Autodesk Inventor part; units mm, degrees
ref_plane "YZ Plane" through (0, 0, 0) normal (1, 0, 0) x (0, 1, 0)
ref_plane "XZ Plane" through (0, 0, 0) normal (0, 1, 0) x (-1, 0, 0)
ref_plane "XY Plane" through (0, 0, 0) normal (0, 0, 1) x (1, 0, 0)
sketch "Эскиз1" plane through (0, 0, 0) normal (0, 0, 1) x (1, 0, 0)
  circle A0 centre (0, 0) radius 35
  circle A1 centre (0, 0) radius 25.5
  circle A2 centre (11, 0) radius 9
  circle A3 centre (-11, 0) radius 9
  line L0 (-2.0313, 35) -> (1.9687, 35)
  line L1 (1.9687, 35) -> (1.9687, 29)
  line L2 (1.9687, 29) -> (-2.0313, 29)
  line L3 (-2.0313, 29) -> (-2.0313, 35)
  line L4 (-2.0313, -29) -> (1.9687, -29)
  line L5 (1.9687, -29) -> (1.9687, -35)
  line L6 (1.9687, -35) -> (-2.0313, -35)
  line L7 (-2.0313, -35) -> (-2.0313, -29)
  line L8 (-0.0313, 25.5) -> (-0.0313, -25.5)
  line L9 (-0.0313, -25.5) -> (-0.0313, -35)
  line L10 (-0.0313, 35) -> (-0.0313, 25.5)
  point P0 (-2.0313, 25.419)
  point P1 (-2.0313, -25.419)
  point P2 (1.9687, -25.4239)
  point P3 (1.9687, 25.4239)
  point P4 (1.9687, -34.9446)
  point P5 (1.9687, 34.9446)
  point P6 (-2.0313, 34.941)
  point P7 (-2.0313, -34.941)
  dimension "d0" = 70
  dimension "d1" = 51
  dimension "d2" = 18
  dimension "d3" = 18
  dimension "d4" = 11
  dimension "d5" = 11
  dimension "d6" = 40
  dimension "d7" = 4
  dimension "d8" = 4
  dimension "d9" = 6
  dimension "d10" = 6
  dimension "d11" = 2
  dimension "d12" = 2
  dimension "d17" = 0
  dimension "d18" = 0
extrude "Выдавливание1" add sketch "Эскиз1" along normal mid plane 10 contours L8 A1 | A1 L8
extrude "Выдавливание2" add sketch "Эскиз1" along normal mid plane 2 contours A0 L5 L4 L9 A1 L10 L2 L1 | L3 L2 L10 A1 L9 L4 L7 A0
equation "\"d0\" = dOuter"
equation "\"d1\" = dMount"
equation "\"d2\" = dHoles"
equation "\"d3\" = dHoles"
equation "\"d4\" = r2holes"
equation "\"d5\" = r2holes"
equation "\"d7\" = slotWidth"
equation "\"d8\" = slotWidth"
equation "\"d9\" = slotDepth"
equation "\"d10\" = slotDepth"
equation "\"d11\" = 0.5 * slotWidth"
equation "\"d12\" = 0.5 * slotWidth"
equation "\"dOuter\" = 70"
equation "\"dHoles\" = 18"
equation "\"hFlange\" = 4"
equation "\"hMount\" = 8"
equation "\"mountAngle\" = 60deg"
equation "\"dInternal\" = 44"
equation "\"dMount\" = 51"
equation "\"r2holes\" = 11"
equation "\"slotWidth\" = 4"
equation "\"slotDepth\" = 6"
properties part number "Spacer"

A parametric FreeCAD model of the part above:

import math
import FreeCAD as App
import Part
import Sketcher
from FreeCAD import Vector

doc = App.newDocument("Part")
params = doc.addObject("Spreadsheet::Sheet", "Params")
for row, (alias, value) in enumerate([
    ("sketch1_diameter", "51 mm"),
    ("sketch1_diameter2", "18 mm"),
    ("pad1_length", "10 mm"),
    ("sketch2_diameter", "51 mm"),
    ("sketch2_radius", "35 mm"),
    ("sketch2_width", "4 mm"),
    ("pad2_length", "2 mm"),
], start=1):
    params.set(f"A{row}", alias)
    params.set(f"B{row}", "=" + value)
    params.setAlias(f"B{row}", alias)

body = doc.addObject("PartDesign::Body", "Body")

# Sketch on XY plane
sketch1 = doc.addObject("Sketcher::SketchObject", "Sketch")
body.addObject(sketch1)
sketch1.AttachmentSupport = (doc.XY_Plane, [""])
sketch1.MapMode = "FlatFace"
sketch1.addGeometry([
    Part.Circle(Vector(0, 0, 0), Vector(0, 0, 1), 26),
    Part.Circle(Vector(-11, 0, 0), Vector(0, 0, 1), 9),
    Part.Circle(Vector(11, 0, 0), Vector(0, 0, 1), 9),
], False)
sketch1.addConstraint([
    Sketcher.Constraint("Coincident", 0, 3, -1, 1),
    Sketcher.Constraint("Equal", 1, 2),
    Sketcher.Constraint("Symmetric", 1, 3, 2, 3, -1, 1),
    Sketcher.Constraint("PointOnObject", 1, 3, -1),
    Sketcher.Constraint("Diameter", 0, 51.0),
    Sketcher.Constraint("Diameter", 1, 18.0),
    Sketcher.Constraint("DistanceX", 1, 3, -1, 1, 11.0),
])
sketch1.setExpression("Constraints[4]", "Params.sketch1_diameter")
sketch1.setExpression("Constraints[5]", "Params.sketch1_diameter2")
pad1 = doc.addObject("PartDesign::Pad", "Pad")
body.addObject(pad1)
pad1.Profile = sketch1
pad1.setExpression("Length", "Params.pad1_length")
pad1.Midplane = True

# Sketch on XY plane
sketch2 = doc.addObject("Sketcher::SketchObject", "Sketch001")
body.addObject(sketch2)
sketch2.AttachmentSupport = (doc.XY_Plane, [""])
sketch2.MapMode = "FlatFace"
sketch2.addGeometry([
    Part.ArcOfCircle(Part.Circle(Vector(0, 0, 0), Vector(0, 0, 1), 35), math.radians(-87), math.radians(87)),  # 0
    Part.LineSegment(Vector(2, 34.9, 0), Vector(2, 29, 0)),  # 1
    Part.LineSegment(Vector(2, 29, 0), Vector(-2, 29, 0)),  # 2
    Part.LineSegment(Vector(-2, 29, 0), Vector(-2, 34.9, 0)),  # 3
    Part.ArcOfCircle(Part.Circle(Vector(0, 0, 0), Vector(0, 0, 1), 35), math.radians(93), math.radians(267)),  # 4
    Part.LineSegment(Vector(-2, -34.9, 0), Vector(-2, -29, 0)),  # 5
    Part.LineSegment(Vector(-2, -29, 0), Vector(2, -29, 0)),  # 6
    Part.LineSegment(Vector(2, -29, 0), Vector(2, -34.9, 0)),  # 7
    Part.Circle(Vector(0, 0, 0), Vector(0, 0, 1), 25.5),  # 8
], False)
sketch2.addConstraint([
    Sketcher.Constraint("Coincident", 0, 2, 1, 1),
    Sketcher.Constraint("Coincident", 1, 2, 2, 1),
    Sketcher.Constraint("Coincident", 2, 2, 3, 1),
    Sketcher.Constraint("Coincident", 3, 2, 4, 1),
    Sketcher.Constraint("Coincident", 4, 2, 5, 1),
    Sketcher.Constraint("Coincident", 5, 2, 6, 1),
    Sketcher.Constraint("Coincident", 6, 2, 7, 1),
    Sketcher.Constraint("Coincident", 7, 2, 0, 1),
    Sketcher.Constraint("Vertical", 1),
    Sketcher.Constraint("Horizontal", 2),
    Sketcher.Constraint("Vertical", 3),
    Sketcher.Constraint("Vertical", 5),
    Sketcher.Constraint("Horizontal", 6),
    Sketcher.Constraint("Vertical", 7),
    Sketcher.Constraint("Coincident", 0, 3, -1, 1),
    Sketcher.Constraint("Coincident", 4, 3, -1, 1),
    Sketcher.Constraint("Coincident", 8, 3, -1, 1),
    Sketcher.Constraint("Equal", 0, 4),
    Sketcher.Constraint("Symmetric", 2, 2, 5, 2, -1),
    Sketcher.Constraint("Vertical", 1, 2, 6, 2),
    Sketcher.Constraint("Diameter", 8, 51.0),
    Sketcher.Constraint("Radius", 0, 35.0),
    Sketcher.Constraint("DistanceX", 2, 2, 2, 1, 4.0),
    Sketcher.Constraint("DistanceY", -1, 1, 1, 2, 29.0),
    Sketcher.Constraint("DistanceY", 3, 1, 3, 2, 5.941),
])
sketch2.setExpression("Constraints[20]", "Params.sketch2_diameter")
sketch2.setExpression("Constraints[21]", "Params.sketch2_radius")
sketch2.setExpression("Constraints[22]", "Params.sketch2_width")
pad2 = doc.addObject("PartDesign::Pad", "Pad001")
body.addObject(pad2)
pad2.Profile = sketch2
pad2.setExpression("Length", "Params.pad2_length")
pad2.Midplane = True

doc.recompute()
